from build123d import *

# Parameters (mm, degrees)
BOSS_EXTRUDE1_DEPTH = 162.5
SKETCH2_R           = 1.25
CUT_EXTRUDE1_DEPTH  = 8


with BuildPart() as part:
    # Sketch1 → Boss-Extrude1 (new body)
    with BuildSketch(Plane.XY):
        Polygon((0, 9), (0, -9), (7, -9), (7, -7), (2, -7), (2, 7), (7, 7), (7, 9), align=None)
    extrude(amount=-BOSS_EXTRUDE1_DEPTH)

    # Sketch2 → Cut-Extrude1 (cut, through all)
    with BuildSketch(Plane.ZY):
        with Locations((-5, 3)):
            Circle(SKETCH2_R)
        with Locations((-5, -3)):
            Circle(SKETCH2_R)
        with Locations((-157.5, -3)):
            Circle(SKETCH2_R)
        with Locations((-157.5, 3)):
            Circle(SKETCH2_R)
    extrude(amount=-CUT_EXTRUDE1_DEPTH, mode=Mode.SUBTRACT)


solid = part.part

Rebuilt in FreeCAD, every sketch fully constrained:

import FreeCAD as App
import Part
import Sketcher

V = App.Vector
Q = App.Units.Quantity

doc = App.newDocument("Part")
body = doc.addObject("PartDesign::Body", "Body")

# Sketch on XY plane
sketch1 = body.newObject("Sketcher::SketchObject", "Sketch")
sketch1.AttachmentSupport = (doc.getObject("XY_Plane"), [""])
sketch1.MapMode = "FlatFace"
sketch1.addGeometry([
    Part.LineSegment(V(0, 9, 0), V(0, -9, 0)),  # 0
    Part.LineSegment(V(0, -9, 0), V(7, -9, 0)),  # 1
    Part.LineSegment(V(7, -9, 0), V(7, -7, 0)),  # 2
    Part.LineSegment(V(7, -7, 0), V(2, -7, 0)),  # 3
    Part.LineSegment(V(2, -7, 0), V(2, 7, 0)),  # 4
    Part.LineSegment(V(2, 7, 0), V(7, 7, 0)),  # 5
    Part.LineSegment(V(7, 7, 0), V(7, 9, 0)),  # 6
    Part.LineSegment(V(7, 9, 0), V(0, 9, 0)),  # 7
], False)
sketch1.addConstraint([
    Sketcher.Constraint("Coincident", 0, 2, 1, 1),
    Sketcher.Constraint("Coincident", 1, 2, 2, 1),
    Sketcher.Constraint("Coincident", 2, 2, 3, 1),
    Sketcher.Constraint("Coincident", 3, 2, 4, 1),
    Sketcher.Constraint("Coincident", 4, 2, 5, 1),
    Sketcher.Constraint("Coincident", 5, 2, 6, 1),
    Sketcher.Constraint("Coincident", 6, 2, 7, 1),
    Sketcher.Constraint("Coincident", 7, 2, 0, 1),
    Sketcher.Constraint("Vertical", 0),
    Sketcher.Constraint("Horizontal", 1),
    Sketcher.Constraint("Vertical", 2),
    Sketcher.Constraint("Horizontal", 3),
    Sketcher.Constraint("Vertical", 4),
    Sketcher.Constraint("Horizontal", 5),
    Sketcher.Constraint("Vertical", 6),
    Sketcher.Constraint("Horizontal", 7),
    Sketcher.Constraint("Symmetric", 0, 2, 7, 2, -1, 1),
    Sketcher.Constraint("Symmetric", 2, 2, 5, 2, -1),
    Sketcher.Constraint("DistanceX", 1, 1, 1, 2, Q("7 mm")),
    Sketcher.Constraint("DistanceX", 3, 2, 3, 1, Q("5 mm")),
    Sketcher.Constraint("DistanceY", 0, 2, 0, 1, Q("18 mm")),
    Sketcher.Constraint("DistanceY", 2, 1, 2, 2, Q("2 mm")),
])
pad1 = body.newObject("PartDesign::Pad", "Pad")
pad1.Profile = sketch1
pad1.Length = 162.5
pad1.Reversed = True

# Sketch on YZ plane
sketch2 = body.newObject("Sketcher::SketchObject", "Sketch001")
sketch2.AttachmentSupport = (doc.getObject("YZ_Plane"), [""])
sketch2.MapMode = "FlatFace"
sketch2.addGeometry([
    Part.Circle(V(3, -5, 0), V(0, 0, 1), 1.2),
    Part.Circle(V(-3, -5, 0), V(0, 0, 1), 1.2),
    Part.Circle(V(-3, -157.5, 0), V(0, 0, 1), 1.2),
    Part.Circle(V(3, -157.5, 0), V(0, 0, 1), 1.2),
], False)
sketch2.addConstraint([
    Sketcher.Constraint("Equal", 0, 1),
    Sketcher.Constraint("Equal", 1, 2),
    Sketcher.Constraint("Equal", 2, 3),
    Sketcher.Constraint("Symmetric", 0, 3, 1, 3, -2),
    Sketcher.Constraint("Symmetric", 2, 3, 3, 3, -2),
    Sketcher.Constraint("Vertical", 1, 3, 2, 3),
    Sketcher.Constraint("Diameter", 0, Q("2.5 mm")),
    Sketcher.Constraint("DistanceX", -1, 1, 0, 3, Q("3 mm")),
    Sketcher.Constraint("DistanceY", 0, 3, -1, 1, Q("5 mm")),
    Sketcher.Constraint("DistanceY", 2, 3, -1, 1, Q("157.5 mm")),
])
pocket1 = body.newObject("PartDesign::Pocket", "Pocket")
pocket1.Profile = sketch2
pocket1.Type = "ThroughAll"
pocket1.Reversed = True

doc.recompute()
